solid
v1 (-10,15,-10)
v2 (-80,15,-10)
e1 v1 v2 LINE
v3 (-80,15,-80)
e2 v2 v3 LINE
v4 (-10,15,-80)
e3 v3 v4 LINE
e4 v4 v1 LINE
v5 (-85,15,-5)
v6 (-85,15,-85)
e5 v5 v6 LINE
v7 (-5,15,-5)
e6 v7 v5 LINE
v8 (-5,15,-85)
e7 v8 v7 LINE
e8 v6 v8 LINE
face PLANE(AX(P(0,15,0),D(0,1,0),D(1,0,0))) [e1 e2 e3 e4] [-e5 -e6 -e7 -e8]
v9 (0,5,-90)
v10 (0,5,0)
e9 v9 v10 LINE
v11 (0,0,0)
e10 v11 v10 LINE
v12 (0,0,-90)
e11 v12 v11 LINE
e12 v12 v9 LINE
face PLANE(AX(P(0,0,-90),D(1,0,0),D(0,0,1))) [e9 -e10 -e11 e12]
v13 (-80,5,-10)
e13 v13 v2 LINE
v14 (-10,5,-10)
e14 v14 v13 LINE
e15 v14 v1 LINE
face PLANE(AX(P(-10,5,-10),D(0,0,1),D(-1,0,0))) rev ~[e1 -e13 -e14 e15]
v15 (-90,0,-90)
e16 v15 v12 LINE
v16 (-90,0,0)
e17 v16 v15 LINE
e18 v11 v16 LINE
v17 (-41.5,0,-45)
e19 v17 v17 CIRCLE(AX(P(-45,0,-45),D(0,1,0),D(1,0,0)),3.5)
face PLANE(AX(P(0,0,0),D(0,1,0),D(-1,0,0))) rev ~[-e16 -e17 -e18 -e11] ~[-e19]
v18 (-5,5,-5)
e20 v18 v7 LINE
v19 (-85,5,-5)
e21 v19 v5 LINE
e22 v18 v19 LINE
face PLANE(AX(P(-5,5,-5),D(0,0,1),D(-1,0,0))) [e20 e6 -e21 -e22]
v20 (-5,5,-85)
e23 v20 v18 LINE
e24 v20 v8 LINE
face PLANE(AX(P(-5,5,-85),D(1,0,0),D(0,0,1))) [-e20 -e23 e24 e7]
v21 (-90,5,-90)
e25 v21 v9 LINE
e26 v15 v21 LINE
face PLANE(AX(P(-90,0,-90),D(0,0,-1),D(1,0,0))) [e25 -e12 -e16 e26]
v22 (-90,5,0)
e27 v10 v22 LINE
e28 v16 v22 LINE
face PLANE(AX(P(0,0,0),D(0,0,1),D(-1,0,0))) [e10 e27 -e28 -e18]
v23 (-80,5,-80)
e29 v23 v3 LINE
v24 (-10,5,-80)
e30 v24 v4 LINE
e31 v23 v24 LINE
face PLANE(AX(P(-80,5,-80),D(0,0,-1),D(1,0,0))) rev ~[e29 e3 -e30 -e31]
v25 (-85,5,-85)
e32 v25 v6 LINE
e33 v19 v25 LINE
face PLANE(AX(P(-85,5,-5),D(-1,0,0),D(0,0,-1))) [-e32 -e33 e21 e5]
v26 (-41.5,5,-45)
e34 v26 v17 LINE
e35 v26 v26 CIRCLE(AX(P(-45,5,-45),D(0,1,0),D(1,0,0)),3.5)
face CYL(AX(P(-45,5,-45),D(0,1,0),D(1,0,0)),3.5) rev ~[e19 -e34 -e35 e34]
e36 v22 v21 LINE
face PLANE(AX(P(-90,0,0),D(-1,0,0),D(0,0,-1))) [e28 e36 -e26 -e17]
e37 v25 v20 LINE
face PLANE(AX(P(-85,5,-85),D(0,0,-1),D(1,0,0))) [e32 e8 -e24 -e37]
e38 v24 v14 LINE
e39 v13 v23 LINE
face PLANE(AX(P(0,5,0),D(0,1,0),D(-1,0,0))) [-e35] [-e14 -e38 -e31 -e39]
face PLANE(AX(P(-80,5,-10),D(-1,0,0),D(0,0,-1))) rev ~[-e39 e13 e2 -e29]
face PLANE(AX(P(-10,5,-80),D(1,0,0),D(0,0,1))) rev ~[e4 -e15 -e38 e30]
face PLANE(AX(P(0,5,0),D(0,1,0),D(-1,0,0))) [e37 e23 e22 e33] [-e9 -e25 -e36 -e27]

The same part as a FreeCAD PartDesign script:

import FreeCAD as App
import Part
import Sketcher

doc = App.newDocument("Part")
body = doc.addObject("PartDesign::Body", "Body")

sketch1 = body.newObject("Sketcher::SketchObject", "Sketch")
sketch1.AttachmentSupport = (doc.getObject("XZ_Plane"), [""])
sketch1.MapMode = "FlatFace"
sketch1.addGeometry([
    Part.LineSegment(App.Vector(-90, 0, 0), App.Vector(0, 0, 0)),
    Part.LineSegment(App.Vector(0, 0, 0), App.Vector(0, -90, 0)),
    Part.LineSegment(App.Vector(0, -90, 0), App.Vector(-90, -90, 0)),
    Part.LineSegment(App.Vector(-90, -90, 0), App.Vector(-90, 0, 0)),
], False)
sketch1.addConstraint([
    Sketcher.Constraint("Coincident", 0, 2, 1, 1),
    Sketcher.Constraint("Coincident", 1, 2, 2, 1),
    Sketcher.Constraint("Coincident", 2, 2, 3, 1),
    Sketcher.Constraint("Coincident", 3, 2, 0, 1),
    Sketcher.Constraint("Horizontal", 0),
    Sketcher.Constraint("Vertical", 1),
    Sketcher.Constraint("Horizontal", 2),
    Sketcher.Constraint("Vertical", 3),
    Sketcher.Constraint("Coincident", 0, 2, -1, 1),
    Sketcher.Constraint("Equal", 2, 1),
    Sketcher.Constraint("DistanceX", 0, 1, 0, 2, 90.0),
])
pad1 = body.newObject("PartDesign::Pad", "Pad")
pad1.Profile = sketch1
pad1.Length = 5
pad1.Reversed = True

sketch2 = body.newObject("Sketcher::SketchObject", "Sketch001")
sketch2.AttachmentSupport = (doc.getObject("XZ_Plane"), [""])
sketch2.MapMode = "FlatFace"
sketch2.AttachmentOffset = App.Placement(App.Vector(0, 0, -5), App.Rotation())
sketch2.addGeometry([
    Part.LineSegment(App.Vector(-85, -5, 0), App.Vector(-5, -5, 0)),
    Part.LineSegment(App.Vector(-5, -5, 0), App.Vector(-5, -85, 0)),
    Part.LineSegment(App.Vector(-5, -85, 0), App.Vector(-85, -85, 0)),
    Part.LineSegment(App.Vector(-85, -85, 0), App.Vector(-85, -5, 0)),
    Part.LineSegment(App.Vector(-10, -80, 0), App.Vector(-10, -10, 0)),
    Part.LineSegment(App.Vector(-10, -10, 0), App.Vector(-80, -10, 0)),
    Part.LineSegment(App.Vector(-80, -10, 0), App.Vector(-80, -80, 0)),
    Part.LineSegment(App.Vector(-80, -80, 0), App.Vector(-10, -80, 0)),
], False)
sketch2.addConstraint([
    Sketcher.Constraint("Coincident", 0, 2, 1, 1),
    Sketcher.Constraint("Coincident", 1, 2, 2, 1),
    Sketcher.Constraint("Coincident", 2, 2, 3, 1),
    Sketcher.Constraint("Coincident", 3, 2, 0, 1),
    Sketcher.Constraint("Coincident", 4, 2, 5, 1),
    Sketcher.Constraint("Coincident", 5, 2, 6, 1),
    Sketcher.Constraint("Coincident", 6, 2, 7, 1),
    Sketcher.Constraint("Coincident", 7, 2, 4, 1),
    Sketcher.Constraint("Horizontal", 0),
    Sketcher.Constraint("Vertical", 1),
    Sketcher.Constraint("Horizontal", 2),
    Sketcher.Constraint("Vertical", 3),
    Sketcher.Constraint("Vertical", 4),
    Sketcher.Constraint("Horizontal", 5),
    Sketcher.Constraint("Vertical", 6),
    Sketcher.Constraint("Horizontal", 7),
    Sketcher.Constraint("Equal", 2, 1),
    Sketcher.Constraint("Equal", 7, 4),
    Sketcher.Constraint("DistanceX", 0, 1, 0, 2, 80.0),
    Sketcher.Constraint("DistanceX", 5, 2, 5, 1, 70.0),
    Sketcher.Constraint("DistanceX", 0, 2, -1, 1, 5.0),
    Sketcher.Constraint("DistanceY", 0, 2, -1, 1, 5.0),
    Sketcher.Constraint("DistanceX", 5, 2, -1, 1, 80.0),
    Sketcher.Constraint("DistanceY", 6, 2, -1, 1, 80.0),
])
pad2 = body.newObject("PartDesign::Pad", "Pad001")
pad2.Profile = sketch2
pad2.Length = 10
pad2.Reversed = True

sketch3 = body.newObject("Sketcher::SketchObject", "Sketch002")
sketch3.AttachmentSupport = (doc.getObject("XZ_Plane"), [""])
sketch3.MapMode = "FlatFace"
sketch3.AttachmentOffset = App.Placement(App.Vector(0, 0, -5), App.Rotation())
sketch3.addGeometry(Part.Circle(App.Vector(-45, -45, 0), App.Vector(0, 0, 1), 3.5), False)
sketch3.addConstraint([
    Sketcher.Constraint("Diameter", 0, 7.0),
    Sketcher.Constraint("DistanceX", 0, 3, -1, 1, 45.0),
    Sketcher.Constraint("DistanceY", 0, 3, -1, 1, 45.0),
])
pocket1 = body.newObject("PartDesign::Pocket", "Pocket")
pocket1.Profile = sketch3
pocket1.Length = 10
pocket1.Reversed = True

doc.recompute()
